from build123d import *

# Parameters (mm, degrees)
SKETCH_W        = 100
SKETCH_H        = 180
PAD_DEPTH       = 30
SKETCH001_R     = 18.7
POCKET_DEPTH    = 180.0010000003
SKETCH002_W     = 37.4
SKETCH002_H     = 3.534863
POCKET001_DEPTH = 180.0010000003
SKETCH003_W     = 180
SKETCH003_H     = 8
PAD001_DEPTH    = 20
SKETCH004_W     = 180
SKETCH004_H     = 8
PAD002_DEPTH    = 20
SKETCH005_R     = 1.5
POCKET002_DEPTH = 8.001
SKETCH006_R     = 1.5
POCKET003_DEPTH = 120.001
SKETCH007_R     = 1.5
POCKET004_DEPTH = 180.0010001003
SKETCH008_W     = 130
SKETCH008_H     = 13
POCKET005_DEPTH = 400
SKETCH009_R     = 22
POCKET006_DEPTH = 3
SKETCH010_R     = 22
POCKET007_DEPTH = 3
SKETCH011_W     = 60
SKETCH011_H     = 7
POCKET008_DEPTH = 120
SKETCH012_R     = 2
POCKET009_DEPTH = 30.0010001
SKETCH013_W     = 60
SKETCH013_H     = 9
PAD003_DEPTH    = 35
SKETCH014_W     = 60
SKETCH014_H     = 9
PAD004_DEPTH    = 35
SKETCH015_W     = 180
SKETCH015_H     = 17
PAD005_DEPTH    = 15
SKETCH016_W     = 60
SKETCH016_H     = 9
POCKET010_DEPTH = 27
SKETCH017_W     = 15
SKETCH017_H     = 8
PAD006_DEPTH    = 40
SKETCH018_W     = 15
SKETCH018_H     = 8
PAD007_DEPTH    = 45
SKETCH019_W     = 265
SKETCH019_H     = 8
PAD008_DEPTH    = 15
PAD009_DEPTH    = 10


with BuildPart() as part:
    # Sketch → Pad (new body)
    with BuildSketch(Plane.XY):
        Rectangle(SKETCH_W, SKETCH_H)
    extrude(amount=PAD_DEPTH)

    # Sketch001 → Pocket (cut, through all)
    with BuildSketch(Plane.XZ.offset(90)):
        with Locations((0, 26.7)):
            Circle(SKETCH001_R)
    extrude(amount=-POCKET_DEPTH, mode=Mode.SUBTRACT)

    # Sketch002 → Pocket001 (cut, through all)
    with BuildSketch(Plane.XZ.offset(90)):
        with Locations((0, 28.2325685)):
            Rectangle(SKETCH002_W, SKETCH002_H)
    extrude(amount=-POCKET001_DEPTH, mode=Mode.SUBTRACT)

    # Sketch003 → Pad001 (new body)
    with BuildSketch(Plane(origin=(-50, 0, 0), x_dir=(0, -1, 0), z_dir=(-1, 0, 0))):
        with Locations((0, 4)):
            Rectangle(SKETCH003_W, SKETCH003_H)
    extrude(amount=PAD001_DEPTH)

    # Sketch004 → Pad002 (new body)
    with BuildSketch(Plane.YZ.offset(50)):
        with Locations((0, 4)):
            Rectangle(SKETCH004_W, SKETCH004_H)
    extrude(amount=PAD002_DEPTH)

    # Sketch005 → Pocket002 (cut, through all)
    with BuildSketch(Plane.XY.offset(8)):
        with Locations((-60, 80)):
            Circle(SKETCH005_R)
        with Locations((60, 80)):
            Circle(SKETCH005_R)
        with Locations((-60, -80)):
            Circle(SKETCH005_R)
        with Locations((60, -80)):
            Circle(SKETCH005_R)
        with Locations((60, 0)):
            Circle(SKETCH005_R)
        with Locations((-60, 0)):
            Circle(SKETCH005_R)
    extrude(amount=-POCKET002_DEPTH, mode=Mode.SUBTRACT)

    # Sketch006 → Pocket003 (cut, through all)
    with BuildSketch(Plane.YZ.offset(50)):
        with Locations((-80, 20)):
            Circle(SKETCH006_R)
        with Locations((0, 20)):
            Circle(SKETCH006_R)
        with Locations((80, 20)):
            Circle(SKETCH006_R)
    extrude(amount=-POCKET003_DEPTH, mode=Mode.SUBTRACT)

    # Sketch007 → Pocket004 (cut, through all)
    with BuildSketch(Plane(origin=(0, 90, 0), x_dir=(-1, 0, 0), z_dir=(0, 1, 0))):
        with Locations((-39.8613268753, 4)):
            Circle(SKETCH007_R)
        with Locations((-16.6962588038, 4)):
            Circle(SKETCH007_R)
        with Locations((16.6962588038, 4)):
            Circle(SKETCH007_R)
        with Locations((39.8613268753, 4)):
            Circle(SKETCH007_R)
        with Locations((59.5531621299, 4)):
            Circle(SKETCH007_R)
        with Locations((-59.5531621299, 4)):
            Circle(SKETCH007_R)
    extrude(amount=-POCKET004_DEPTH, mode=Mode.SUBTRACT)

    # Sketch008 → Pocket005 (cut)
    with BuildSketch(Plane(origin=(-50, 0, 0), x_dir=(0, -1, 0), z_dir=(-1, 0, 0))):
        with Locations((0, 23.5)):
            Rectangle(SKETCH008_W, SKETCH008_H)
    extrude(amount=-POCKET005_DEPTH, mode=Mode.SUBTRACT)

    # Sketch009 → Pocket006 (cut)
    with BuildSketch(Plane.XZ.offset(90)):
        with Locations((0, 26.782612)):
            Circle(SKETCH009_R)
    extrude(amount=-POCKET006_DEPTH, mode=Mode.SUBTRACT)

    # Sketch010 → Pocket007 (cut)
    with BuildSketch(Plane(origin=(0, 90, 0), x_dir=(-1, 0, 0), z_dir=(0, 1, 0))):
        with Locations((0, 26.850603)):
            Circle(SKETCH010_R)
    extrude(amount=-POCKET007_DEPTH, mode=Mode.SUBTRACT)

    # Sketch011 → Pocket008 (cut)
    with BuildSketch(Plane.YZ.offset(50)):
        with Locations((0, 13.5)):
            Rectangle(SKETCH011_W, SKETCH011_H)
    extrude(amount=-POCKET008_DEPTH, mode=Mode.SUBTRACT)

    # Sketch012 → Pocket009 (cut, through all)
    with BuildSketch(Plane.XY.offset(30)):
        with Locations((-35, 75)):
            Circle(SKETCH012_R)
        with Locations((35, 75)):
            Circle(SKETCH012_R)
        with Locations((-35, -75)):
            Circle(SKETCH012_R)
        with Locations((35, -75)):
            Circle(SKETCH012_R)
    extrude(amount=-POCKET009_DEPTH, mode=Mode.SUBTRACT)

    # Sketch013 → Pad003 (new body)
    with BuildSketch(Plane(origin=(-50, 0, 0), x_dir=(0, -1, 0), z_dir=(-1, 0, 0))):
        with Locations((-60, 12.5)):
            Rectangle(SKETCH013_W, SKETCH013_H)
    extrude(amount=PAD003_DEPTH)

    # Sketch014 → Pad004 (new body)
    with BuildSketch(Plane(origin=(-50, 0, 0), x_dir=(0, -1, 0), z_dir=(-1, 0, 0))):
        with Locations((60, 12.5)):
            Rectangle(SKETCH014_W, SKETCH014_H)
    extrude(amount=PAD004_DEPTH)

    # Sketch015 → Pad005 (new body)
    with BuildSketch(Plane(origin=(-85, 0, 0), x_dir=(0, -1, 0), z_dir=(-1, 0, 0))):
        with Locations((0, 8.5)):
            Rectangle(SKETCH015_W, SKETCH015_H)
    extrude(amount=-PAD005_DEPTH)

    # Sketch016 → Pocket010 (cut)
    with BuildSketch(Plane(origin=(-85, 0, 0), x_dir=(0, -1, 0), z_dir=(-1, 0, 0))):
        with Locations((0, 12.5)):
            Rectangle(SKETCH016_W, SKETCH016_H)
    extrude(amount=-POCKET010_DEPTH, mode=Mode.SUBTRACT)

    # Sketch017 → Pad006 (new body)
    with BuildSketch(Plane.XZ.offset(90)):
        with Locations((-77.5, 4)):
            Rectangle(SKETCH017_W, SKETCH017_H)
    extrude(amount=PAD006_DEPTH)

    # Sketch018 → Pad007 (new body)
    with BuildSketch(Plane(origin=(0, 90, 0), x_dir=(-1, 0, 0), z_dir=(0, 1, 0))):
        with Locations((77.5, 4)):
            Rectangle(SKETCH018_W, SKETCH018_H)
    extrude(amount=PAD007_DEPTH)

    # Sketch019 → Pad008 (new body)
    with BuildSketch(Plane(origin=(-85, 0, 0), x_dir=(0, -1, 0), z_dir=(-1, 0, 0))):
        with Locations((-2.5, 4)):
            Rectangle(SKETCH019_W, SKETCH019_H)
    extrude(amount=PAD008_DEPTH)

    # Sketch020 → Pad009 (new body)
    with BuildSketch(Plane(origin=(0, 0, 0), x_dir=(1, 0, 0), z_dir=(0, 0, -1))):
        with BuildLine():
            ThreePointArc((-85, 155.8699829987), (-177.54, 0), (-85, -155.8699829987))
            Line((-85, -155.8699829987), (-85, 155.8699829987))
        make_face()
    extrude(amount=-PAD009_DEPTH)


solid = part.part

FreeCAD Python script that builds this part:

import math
import FreeCAD as App
import Part
import Sketcher
Q = App.Units.Quantity

doc = App.newDocument("Part")
body = doc.addObject("PartDesign::Body", "Body")

# Sketch on XY plane
sketch1 = body.newObject("Sketcher::SketchObject", "Sketch")
sketch1.AttachmentSupport = (doc.getObject("XY_Plane"), [""])
sketch1.MapMode = "FlatFace"
sketch1.addGeometry([
    Part.LineSegment(App.Vector(-50, 90, 0), App.Vector(-50, -90, 0)),
    Part.LineSegment(App.Vector(-50, -90, 0), App.Vector(50, -90, 0)),
    Part.LineSegment(App.Vector(50, -90, 0), App.Vector(50, 90, 0)),
    Part.LineSegment(App.Vector(50, 90, 0), App.Vector(-50, 90, 0)),
], False)
sketch1.addConstraint([
    Sketcher.Constraint("Coincident", 0, 2, 1, 1),
    Sketcher.Constraint("Coincident", 1, 2, 2, 1),
    Sketcher.Constraint("Coincident", 2, 2, 3, 1),
    Sketcher.Constraint("Coincident", 3, 2, 0, 1),
    Sketcher.Constraint("Vertical", 0),
    Sketcher.Constraint("Horizontal", 1),
    Sketcher.Constraint("Vertical", 2),
    Sketcher.Constraint("Horizontal", 3),
    Sketcher.Constraint("Symmetric", 0, 2, 2, 2, -1, 1),
    Sketcher.Constraint("DistanceX", 1, 1, 1, 2, Q("100 mm")),
    Sketcher.Constraint("DistanceY", 0, 2, 0, 1, Q("180 mm")),
])
pad1 = body.newObject("PartDesign::Pad", "Pad")
pad1.Profile = sketch1
pad1.Length = 30

# Sketch on XZ plane
sketch2 = body.newObject("Sketcher::SketchObject", "Sketch001")
sketch2.AttachmentSupport = (doc.getObject("XZ_Plane"), [""])
sketch2.MapMode = "FlatFace"
sketch2.AttachmentOffset = App.Placement(App.Vector(0, 0, 90), App.Rotation())
sketch2.addGeometry(Part.Circle(App.Vector(0, 26.7, 0), App.Vector(0, 0, 1), 18.7), False)
sketch2.addConstraint([
    Sketcher.Constraint("PointOnObject", 0, 3, -2),
    Sketcher.Constraint("Diameter", 0, Q("37.4 mm")),
    Sketcher.Constraint("DistanceY", -1, 1, 0, 3, Q("26.7 mm")),
])
pocket1 = body.newObject("PartDesign::Pocket", "Pocket")
pocket1.Profile = sketch2
pocket1.Type = "ThroughAll"

# Sketch on XZ plane
sketch3 = body.newObject("Sketcher::SketchObject", "Sketch002")
sketch3.AttachmentSupport = (doc.getObject("XZ_Plane"), [""])
sketch3.MapMode = "FlatFace"
sketch3.AttachmentOffset = App.Placement(App.Vector(0, 0, 90), App.Rotation())
sketch3.addGeometry([
    Part.LineSegment(App.Vector(-18.7, 30, 0), App.Vector(-18.7, 26.465137, 0)),
    Part.LineSegment(App.Vector(-18.7, 26.465137, 0), App.Vector(18.7, 26.465137, 0)),
    Part.LineSegment(App.Vector(18.7, 26.465137, 0), App.Vector(18.7, 30, 0)),
    Part.LineSegment(App.Vector(18.7, 30, 0), App.Vector(-18.7, 30, 0)),
], False)
sketch3.addConstraint([
    Sketcher.Constraint("Coincident", 0, 2, 1, 1),
    Sketcher.Constraint("Coincident", 1, 2, 2, 1),
    Sketcher.Constraint("Coincident", 2, 2, 3, 1),
    Sketcher.Constraint("Coincident", 3, 2, 0, 1),
    Sketcher.Constraint("Vertical", 0),
    Sketcher.Constraint("Horizontal", 1),
    Sketcher.Constraint("Vertical", 2),
    Sketcher.Constraint("Horizontal", 3),
    Sketcher.Constraint("DistanceX", 1, 1, 1, 2, Q("37.4 mm")),
    Sketcher.Constraint("DistanceY", -1, 1, 2, 2, Q("30 mm")),
    Sketcher.Constraint("DistanceX", 0, 2, -1, 1, Q("18.7 mm")),
    Sketcher.Constraint("DistanceY", 0, 2, 0, 1, Q("3.534863 mm")),
])
pocket2 = body.newObject("PartDesign::Pocket", "Pocket001")
pocket2.Profile = sketch3
pocket2.Type = "ThroughAll"

# Sketch on YZ plane
sketch4 = body.newObject("Sketcher::SketchObject", "Sketch003")
sketch4.AttachmentSupport = (doc.getObject("YZ_Plane"), [""])
sketch4.MapMode = "FlatFace"
sketch4.AttachmentOffset = App.Placement(App.Vector(0, 0, -50), App.Rotation())
sketch4.addGeometry([
    Part.LineSegment(App.Vector(90, 8, 0), App.Vector(90, 0, 0)),
    Part.LineSegment(App.Vector(90, 0, 0), App.Vector(-90, 0, 0)),
    Part.LineSegment(App.Vector(-90, 0, 0), App.Vector(-90, 8, 0)),
    Part.LineSegment(App.Vector(-90, 8, 0), App.Vector(90, 8, 0)),
], False)
sketch4.addConstraint([
    Sketcher.Constraint("Coincident", 0, 2, 1, 1),
    Sketcher.Constraint("Coincident", 1, 2, 2, 1),
    Sketcher.Constraint("Coincident", 2, 2, 3, 1),
    Sketcher.Constraint("Coincident", 3, 2, 0, 1),
    Sketcher.Constraint("Vertical", 0),
    Sketcher.Constraint("Horizontal", 1),
    Sketcher.Constraint("Vertical", 2),
    Sketcher.Constraint("Horizontal", 3),
    Sketcher.Constraint("Symmetric", 0, 2, 1, 2, -1, 1),
    Sketcher.Constraint("DistanceX", 1, 2, 1, 1, Q("180 mm")),
    Sketcher.Constraint("DistanceY", 0, 2, 0, 1, Q("8 mm")),
])
pad2 = body.newObject("PartDesign::Pad", "Pad001")
pad2.Profile = sketch4
pad2.Length = 20
pad2.Reversed = True

# Sketch on YZ plane
sketch5 = body.newObject("Sketcher::SketchObject", "Sketch004")
sketch5.AttachmentSupport = (doc.getObject("YZ_Plane"), [""])
sketch5.MapMode = "FlatFace"
sketch5.AttachmentOffset = App.Placement(App.Vector(0, 0, 50), App.Rotation())
sketch5.addGeometry([
    Part.LineSegment(App.Vector(-90, 8, 0), App.Vector(-90, 0, 0)),
    Part.LineSegment(App.Vector(-90, 0, 0), App.Vector(90, 0, 0)),
    Part.LineSegment(App.Vector(90, 0, 0), App.Vector(90, 8, 0)),
    Part.LineSegment(App.Vector(90, 8, 0), App.Vector(-90, 8, 0)),
], False)
sketch5.addConstraint([
    Sketcher.Constraint("Coincident", 0, 2, 1, 1),
    Sketcher.Constraint("Coincident", 1, 2, 2, 1),
    Sketcher.Constraint("Coincident", 2, 2, 3, 1),
    Sketcher.Constraint("Coincident", 3, 2, 0, 1),
    Sketcher.Constraint("Vertical", 0),
    Sketcher.Constraint("Horizontal", 1),
    Sketcher.Constraint("Vertical", 2),
    Sketcher.Constraint("Horizontal", 3),
    Sketcher.Constraint("Symmetric", 0, 2, 1, 2, -1, 1),
    Sketcher.Constraint("DistanceX", 1, 1, 1, 2, Q("180 mm")),
    Sketcher.Constraint("DistanceY", 0, 2, 0, 1, Q("8 mm")),
])
pad3 = body.newObject("PartDesign::Pad", "Pad002")
pad3.Profile = sketch5
pad3.Length = 20

# Sketch on XY plane
sketch6 = body.newObject("Sketcher::SketchObject", "Sketch005")
sketch6.AttachmentSupport = (doc.getObject("XY_Plane"), [""])
sketch6.MapMode = "FlatFace"
sketch6.AttachmentOffset = App.Placement(App.Vector(0, 0, 8), App.Rotation())
sketch6.addGeometry([
    Part.Circle(App.Vector(-60, 80, 0), App.Vector(0, 0, 1), 1.5),  # 0
    Part.Circle(App.Vector(60, 80, 0), App.Vector(0, 0, 1), 1.5),  # 1
    Part.Circle(App.Vector(-60, -80, 0), App.Vector(0, 0, 1), 1.5),  # 2
    Part.Circle(App.Vector(60, -80, 0), App.Vector(0, 0, 1), 1.5),  # 3
    Part.Circle(App.Vector(60, 0, 0), App.Vector(0, 0, 1), 1.5),  # 4
    Part.Circle(App.Vector(-60, 0, 0), App.Vector(0, 0, 1), 1.5),  # 5
], False)
sketch6.addConstraint([
    Sketcher.Constraint("Equal", 0, 1),
    Sketcher.Constraint("Equal", 1, 2),
    Sketcher.Constraint("Equal", 2, 3),
    Sketcher.Constraint("Equal", 3, 4),
    Sketcher.Constraint("Equal", 4, 5),
    Sketcher.Constraint("Symmetric", 1, 3, 2, 3, -1, 1),
    Sketcher.Constraint("Symmetric", 0, 3, 3, 3, -1, 1),
    Sketcher.Constraint("Symmetric", 4, 3, 5, 3, -1, 1),
    Sketcher.Constraint("Symmetric", 0, 3, 1, 3, -2),
    Sketcher.Constraint("PointOnObject", 4, 3, -1),
    Sketcher.Constraint("Vertical", 3, 3, 4, 3),
    Sketcher.Constraint("Diameter", 0, Q("3 mm")),
    Sketcher.Constraint("DistanceX", 0, 3, -1, 1, Q("60 mm")),
    Sketcher.Constraint("DistanceY", -1, 1, 0, 3, Q("80 mm")),
])
pocket3 = body.newObject("PartDesign::Pocket", "Pocket002")
pocket3.Profile = sketch6
pocket3.Type = "ThroughAll"

# Sketch on YZ plane
sketch7 = body.newObject("Sketcher::SketchObject", "Sketch006")
sketch7.AttachmentSupport = (doc.getObject("YZ_Plane"), [""])
sketch7.MapMode = "FlatFace"
sketch7.AttachmentOffset = App.Placement(App.Vector(0, 0, 50), App.Rotation())
sketch7.addGeometry([
    Part.Circle(App.Vector(-80, 20, 0), App.Vector(0, 0, 1), 1.5),
    Part.Circle(App.Vector(0, 20, 0), App.Vector(0, 0, 1), 1.5),
    Part.Circle(App.Vector(80, 20, 0), App.Vector(0, 0, 1), 1.5),
], False)
sketch7.addConstraint([
    Sketcher.Constraint("Equal", 0, 1),
    Sketcher.Constraint("Equal", 1, 2),
    Sketcher.Constraint("Symmetric", 0, 3, 2, 3, -2),
    Sketcher.Constraint("PointOnObject", 1, 3, -2),
    Sketcher.Constraint("Horizontal", 0, 3, 1, 3),
    Sketcher.Constraint("Diameter", 0, Q("3 mm")),
    Sketcher.Constraint("DistanceX", 0, 3, -1, 1, Q("80 mm")),
    Sketcher.Constraint("DistanceY", -1, 1, 0, 3, Q("20 mm")),
])
pocket4 = body.newObject("PartDesign::Pocket", "Pocket003")
pocket4.Profile = sketch7
pocket4.Type = "ThroughAll"

# Sketch on XZ plane
sketch8 = body.newObject("Sketcher::SketchObject", "Sketch007")
sketch8.AttachmentSupport = (doc.getObject("XZ_Plane"), [""])
sketch8.MapMode = "FlatFace"
sketch8.AttachmentOffset = App.Placement(App.Vector(0, 0, -90), App.Rotation())
sketch8.addGeometry([
    Part.Circle(App.Vector(39.861327, 4, 0), App.Vector(0, 0, 1), 1.5),  # 0
    Part.Circle(App.Vector(16.696259, 4, 0), App.Vector(0, 0, 1), 1.5),  # 1
    Part.Circle(App.Vector(-16.696259, 4, 0), App.Vector(0, 0, 1), 1.5),  # 2
    Part.Circle(App.Vector(-39.861327, 4, 0), App.Vector(0, 0, 1), 1.5),  # 3
    Part.Circle(App.Vector(-59.553162, 4, 0), App.Vector(0, 0, 1), 1.5),  # 4
    Part.Circle(App.Vector(59.553162, 4, 0), App.Vector(0, 0, 1), 1.5),  # 5
], False)
sketch8.addConstraint([
    Sketcher.Constraint("Equal", 0, 1),
    Sketcher.Constraint("Equal", 1, 2),
    Sketcher.Constraint("Equal", 2, 3),
    Sketcher.Constraint("Equal", 3, 4),
    Sketcher.Constraint("Equal", 4, 5),
    Sketcher.Constraint("Symmetric", 1, 3, 2, 3, -2),
    Sketcher.Constraint("Symmetric", 0, 3, 3, 3, -2),
    Sketcher.Constraint("Symmetric", 4, 3, 5, 3, -2),
    Sketcher.Constraint("Horizontal", 0, 3, 1, 3),
    Sketcher.Constraint("Horizontal", 3, 3, 4, 3),
    Sketcher.Constraint("Diameter", 0, Q("3 mm")),
    Sketcher.Constraint("DistanceY", -1, 1, 0, 3, Q("4 mm")),
    Sketcher.Constraint("DistanceX", -1, 1, 1, 3, Q("16.696259 mm")),
    Sketcher.Constraint("DistanceX", 1, 3, 0, 3, Q("23.165068 mm")),
    Sketcher.Constraint("DistanceX", 4, 3, 1, 3, Q("76.249421 mm")),
])
pocket5 = body.newObject("PartDesign::Pocket", "Pocket004")
pocket5.Profile = sketch8
pocket5.Type = "ThroughAll"
pocket5.Reversed = True

# Sketch on YZ plane
sketch9 = body.newObject("Sketcher::SketchObject", "Sketch008")
sketch9.AttachmentSupport = (doc.getObject("YZ_Plane"), [""])
sketch9.MapMode = "FlatFace"
sketch9.AttachmentOffset = App.Placement(App.Vector(0, 0, -50), App.Rotation())
sketch9.addGeometry([
    Part.LineSegment(App.Vector(65, 30, 0), App.Vector(65, 17, 0)),
    Part.LineSegment(App.Vector(65, 17, 0), App.Vector(-65, 17, 0)),
    Part.LineSegment(App.Vector(-65, 17, 0), App.Vector(-65, 30, 0)),
    Part.LineSegment(App.Vector(-65, 30, 0), App.Vector(65, 30, 0)),
], False)
sketch9.addConstraint([
    Sketcher.Constraint("Coincident", 0, 2, 1, 1),
    Sketcher.Constraint("Coincident", 1, 2, 2, 1),
    Sketcher.Constraint("Coincident", 2, 2, 3, 1),
    Sketcher.Constraint("Coincident", 3, 2, 0, 1),
    Sketcher.Constraint("Vertical", 0),
    Sketcher.Constraint("Horizontal", 1),
    Sketcher.Constraint("Vertical", 2),
    Sketcher.Constraint("Horizontal", 3),
    Sketcher.Constraint("DistanceX", 1, 2, 1, 1, Q("130 mm")),
    Sketcher.Constraint("DistanceY", 0, 2, 0, 1, Q("13 mm")),
    Sketcher.Constraint("DistanceX", -1, 1, 0, 2, Q("65 mm")),
    Sketcher.Constraint("DistanceY", -1, 1, 0, 2, Q("17 mm")),
])
pocket6 = body.newObject("PartDesign::Pocket", "Pocket005")
pocket6.Profile = sketch9
pocket6.Length = 400
pocket6.Reversed = True

# Sketch on XZ plane
sketch10 = body.newObject("Sketcher::SketchObject", "Sketch009")
sketch10.AttachmentSupport = (doc.getObject("XZ_Plane"), [""])
sketch10.MapMode = "FlatFace"
sketch10.AttachmentOffset = App.Placement(App.Vector(0, 0, 90), App.Rotation())
sketch10.addGeometry(Part.Circle(App.Vector(0, 26.782612, 0), App.Vector(0, 0, 1), 22), False)
sketch10.addConstraint([
    Sketcher.Constraint("PointOnObject", 0, 3, -2),
    Sketcher.Constraint("Diameter", 0, Q("44 mm")),
    Sketcher.Constraint("DistanceY", -1, 1, 0, 3, Q("26.782612 mm")),
])
pocket7 = body.newObject("PartDesign::Pocket", "Pocket006")
pocket7.Profile = sketch10
pocket7.Length = 3

# Sketch on XZ plane
sketch11 = body.newObject("Sketcher::SketchObject", "Sketch010")
sketch11.AttachmentSupport = (doc.getObject("XZ_Plane"), [""])
sketch11.MapMode = "FlatFace"
sketch11.AttachmentOffset = App.Placement(App.Vector(0, 0, -90), App.Rotation())
sketch11.addGeometry(Part.Circle(App.Vector(0, 26.850603, 0), App.Vector(0, 0, 1), 22), False)
sketch11.addConstraint([
    Sketcher.Constraint("PointOnObject", 0, 3, -2),
    Sketcher.Constraint("Diameter", 0, Q("44 mm")),
    Sketcher.Constraint("DistanceY", -1, 1, 0, 3, Q("26.850603 mm")),
])
pocket8 = body.newObject("PartDesign::Pocket", "Pocket007")
pocket8.Profile = sketch11
pocket8.Length = 3
pocket8.Reversed = True

# Sketch on YZ plane
sketch12 = body.newObject("Sketcher::SketchObject", "Sketch011")
sketch12.AttachmentSupport = (doc.getObject("YZ_Plane"), [""])
sketch12.MapMode = "FlatFace"
sketch12.AttachmentOffset = App.Placement(App.Vector(0, 0, 50), App.Rotation())
sketch12.addGeometry([
    Part.LineSegment(App.Vector(-30, 17, 0), App.Vector(-30, 10, 0)),
    Part.LineSegment(App.Vector(-30, 10, 0), App.Vector(30, 10, 0)),
    Part.LineSegment(App.Vector(30, 10, 0), App.Vector(30, 17, 0)),
    Part.LineSegment(App.Vector(30, 17, 0), App.Vector(-30, 17, 0)),
], False)
sketch12.addConstraint([
    Sketcher.Constraint("Coincident", 0, 2, 1, 1),
    Sketcher.Constraint("Coincident", 1, 2, 2, 1),
    Sketcher.Constraint("Coincident", 2, 2, 3, 1),
    Sketcher.Constraint("Coincident", 3, 2, 0, 1),
    Sketcher.Constraint("Vertical", 0),
    Sketcher.Constraint("Horizontal", 1),
    Sketcher.Constraint("Vertical", 2),
    Sketcher.Constraint("Horizontal", 3),
    Sketcher.Constraint("DistanceX", 1, 1, 1, 2, Q("60 mm")),
    Sketcher.Constraint("DistanceY", 0, 2, 0, 1, Q("7 mm")),
    Sketcher.Constraint("DistanceX", 0, 2, -1, 1, Q("30 mm")),
    Sketcher.Constraint("DistanceY", -1, 1, 0, 2, Q("10 mm")),
])
pocket9 = body.newObject("PartDesign::Pocket", "Pocket008")
pocket9.Profile = sketch12
pocket9.Length = 120

# Sketch on XY plane
sketch13 = body.newObject("Sketcher::SketchObject", "Sketch012")
sketch13.AttachmentSupport = (doc.getObject("XY_Plane"), [""])
sketch13.MapMode = "FlatFace"
sketch13.AttachmentOffset = App.Placement(App.Vector(0, 0, 30), App.Rotation())
sketch13.addGeometry([
    Part.Circle(App.Vector(-35, 75, 0), App.Vector(0, 0, 1), 2),
    Part.Circle(App.Vector(35, 75, 0), App.Vector(0, 0, 1), 2),
    Part.Circle(App.Vector(-35, -75, 0), App.Vector(0, 0, 1), 2),
    Part.Circle(App.Vector(35, -75, 0), App.Vector(0, 0, 1), 2),
], False)
sketch13.addConstraint([
    Sketcher.Constraint("Equal", 0, 1),
    Sketcher.Constraint("Equal", 1, 2),
    Sketcher.Constraint("Equal", 2, 3),
    Sketcher.Constraint("Symmetric", 1, 3, 2, 3, -1, 1),
    Sketcher.Constraint("Symmetric", 0, 3, 3, 3, -1, 1),
    Sketcher.Constraint("Symmetric", 0, 3, 1, 3, -2),
    Sketcher.Constraint("Diameter", 0, Q("4 mm")),
    Sketcher.Constraint("DistanceX", 0, 3, -1, 1, Q("35 mm")),
    Sketcher.Constraint("DistanceY", -1, 1, 0, 3, Q("75 mm")),
])
pocket10 = body.newObject("PartDesign::Pocket", "Pocket009")
pocket10.Profile = sketch13
pocket10.Type = "ThroughAll"

# Sketch on YZ plane
sketch14 = body.newObject("Sketcher::SketchObject", "Sketch013")
sketch14.AttachmentSupport = (doc.getObject("YZ_Plane"), [""])
sketch14.MapMode = "FlatFace"
sketch14.AttachmentOffset = App.Placement(App.Vector(0, 0, -50), App.Rotation())
sketch14.addGeometry([
    Part.LineSegment(App.Vector(90, 17, 0), App.Vector(90, 8, 0)),
    Part.LineSegment(App.Vector(90, 8, 0), App.Vector(30, 8, 0)),
    Part.LineSegment(App.Vector(30, 8, 0), App.Vector(30, 17, 0)),
    Part.LineSegment(App.Vector(30, 17, 0), App.Vector(90, 17, 0)),
], False)
sketch14.addConstraint([
    Sketcher.Constraint("Coincident", 0, 2, 1, 1),
    Sketcher.Constraint("Coincident", 1, 2, 2, 1),
    Sketcher.Constraint("Coincident", 2, 2, 3, 1),
    Sketcher.Constraint("Coincident", 3, 2, 0, 1),
    Sketcher.Constraint("Vertical", 0),
    Sketcher.Constraint("Horizontal", 1),
    Sketcher.Constraint("Vertical", 2),
    Sketcher.Constraint("Horizontal", 3),
    Sketcher.Constraint("DistanceX", 1, 2, 1, 1, Q("60 mm")),
    Sketcher.Constraint("DistanceY", 0, 2, 0, 1, Q("9 mm")),
    Sketcher.Constraint("DistanceX", -1, 1, 0, 2, Q("90 mm")),
    Sketcher.Constraint("DistanceY", -1, 1, 0, 2, Q("8 mm")),
])
pad4 = body.newObject("PartDesign::Pad", "Pad003")
pad4.Profile = sketch14
pad4.Length = 35
pad4.Reversed = True

# Sketch on YZ plane
sketch15 = body.newObject("Sketcher::SketchObject", "Sketch014")
sketch15.AttachmentSupport = (doc.getObject("YZ_Plane"), [""])
sketch15.MapMode = "FlatFace"
sketch15.AttachmentOffset = App.Placement(App.Vector(0, 0, -50), App.Rotation())
sketch15.addGeometry([
    Part.LineSegment(App.Vector(-30, 17, 0), App.Vector(-30, 8, 0)),
    Part.LineSegment(App.Vector(-30, 8, 0), App.Vector(-90, 8, 0)),
    Part.LineSegment(App.Vector(-90, 8, 0), App.Vector(-90, 17, 0)),
    Part.LineSegment(App.Vector(-90, 17, 0), App.Vector(-30, 17, 0)),
], False)
sketch15.addConstraint([
    Sketcher.Constraint("Coincident", 0, 2, 1, 1),
    Sketcher.Constraint("Coincident", 1, 2, 2, 1),
    Sketcher.Constraint("Coincident", 2, 2, 3, 1),
    Sketcher.Constraint("Coincident", 3, 2, 0, 1),
    Sketcher.Constraint("Vertical", 0),
    Sketcher.Constraint("Horizontal", 1),
    Sketcher.Constraint("Vertical", 2),
    Sketcher.Constraint("Horizontal", 3),
    Sketcher.Constraint("DistanceX", 1, 2, 1, 1, Q("60 mm")),
    Sketcher.Constraint("DistanceY", 0, 2, 0, 1, Q("9 mm")),
    Sketcher.Constraint("DistanceX", 0, 2, -1, 1, Q("30 mm")),
    Sketcher.Constraint("DistanceY", -1, 1, 0, 2, Q("8 mm")),
])
pad5 = body.newObject("PartDesign::Pad", "Pad004")
pad5.Profile = sketch15
pad5.Length = 35
pad5.Reversed = True

# Sketch on YZ plane
sketch16 = body.newObject("Sketcher::SketchObject", "Sketch015")
sketch16.AttachmentSupport = (doc.getObject("YZ_Plane"), [""])
sketch16.MapMode = "FlatFace"
sketch16.AttachmentOffset = App.Placement(App.Vector(0, 0, -85), App.Rotation())
sketch16.addGeometry([
    Part.LineSegment(App.Vector(90, 17, 0), App.Vector(90, 0, 0)),
    Part.LineSegment(App.Vector(90, 0, 0), App.Vector(-90, 0, 0)),
    Part.LineSegment(App.Vector(-90, 0, 0), App.Vector(-90, 17, 0)),
    Part.LineSegment(App.Vector(-90, 17, 0), App.Vector(90, 17, 0)),
], False)
sketch16.addConstraint([
    Sketcher.Constraint("Coincident", 0, 2, 1, 1),
    Sketcher.Constraint("Coincident", 1, 2, 2, 1),
    Sketcher.Constraint("Coincident", 2, 2, 3, 1),
    Sketcher.Constraint("Coincident", 3, 2, 0, 1),
    Sketcher.Constraint("Vertical", 0),
    Sketcher.Constraint("Horizontal", 1),
    Sketcher.Constraint("Vertical", 2),
    Sketcher.Constraint("Horizontal", 3),
    Sketcher.Constraint("Symmetric", 0, 2, 1, 2, -1, 1),
    Sketcher.Constraint("DistanceX", 1, 2, 1, 1, Q("180 mm")),
    Sketcher.Constraint("DistanceY", 0, 2, 0, 1, Q("17 mm")),
])
pad6 = body.newObject("PartDesign::Pad", "Pad005")
pad6.Profile = sketch16
pad6.Length = 15

# Sketch on YZ plane
sketch17 = body.newObject("Sketcher::SketchObject", "Sketch016")
sketch17.AttachmentSupport = (doc.getObject("YZ_Plane"), [""])
sketch17.MapMode = "FlatFace"
sketch17.AttachmentOffset = App.Placement(App.Vector(0, 0, -85), App.Rotation())
sketch17.addGeometry([
    Part.LineSegment(App.Vector(30, 17, 0), App.Vector(30, 8, 0)),
    Part.LineSegment(App.Vector(30, 8, 0), App.Vector(-30, 8, 0)),
    Part.LineSegment(App.Vector(-30, 8, 0), App.Vector(-30, 17, 0)),
    Part.LineSegment(App.Vector(-30, 17, 0), App.Vector(30, 17, 0)),
], False)
sketch17.addConstraint([
    Sketcher.Constraint("Coincident", 0, 2, 1, 1),
    Sketcher.Constraint("Coincident", 1, 2, 2, 1),
    Sketcher.Constraint("Coincident", 2, 2, 3, 1),
    Sketcher.Constraint("Coincident", 3, 2, 0, 1),
    Sketcher.Constraint("Vertical", 0),
    Sketcher.Constraint("Horizontal", 1),
    Sketcher.Constraint("Vertical", 2),
    Sketcher.Constraint("Horizontal", 3),
    Sketcher.Constraint("DistanceX", 1, 2, 1, 1, Q("60 mm")),
    Sketcher.Constraint("DistanceY", 0, 2, 0, 1, Q("9 mm")),
    Sketcher.Constraint("DistanceX", -1, 1, 0, 2, Q("30 mm")),
    Sketcher.Constraint("DistanceY", -1, 1, 0, 2, Q("8 mm")),
])
pocket11 = body.newObject("PartDesign::Pocket", "Pocket010")
pocket11.Profile = sketch17
pocket11.Length = 27
pocket11.Reversed = True

# Sketch on XZ plane
sketch18 = body.newObject("Sketcher::SketchObject", "Sketch017")
sketch18.AttachmentSupport = (doc.getObject("XZ_Plane"), [""])
sketch18.MapMode = "FlatFace"
sketch18.AttachmentOffset = App.Placement(App.Vector(0, 0, 90), App.Rotation())
sketch18.addGeometry([
    Part.LineSegment(App.Vector(-85, 8, 0), App.Vector(-85, 0, 0)),
    Part.LineSegment(App.Vector(-85, 0, 0), App.Vector(-70, 0, 0)),
    Part.LineSegment(App.Vector(-70, 0, 0), App.Vector(-70, 8, 0)),
    Part.LineSegment(App.Vector(-70, 8, 0), App.Vector(-85, 8, 0)),
], False)
sketch18.addConstraint([
    Sketcher.Constraint("Coincident", 0, 2, 1, 1),
    Sketcher.Constraint("Coincident", 1, 2, 2, 1),
    Sketcher.Constraint("Coincident", 2, 2, 3, 1),
    Sketcher.Constraint("Coincident", 3, 2, 0, 1),
    Sketcher.Constraint("Vertical", 0),
    Sketcher.Constraint("Horizontal", 1),
    Sketcher.Constraint("Vertical", 2),
    Sketcher.Constraint("Horizontal", 3),
    Sketcher.Constraint("PointOnObject", 0, 2, -1),
    Sketcher.Constraint("DistanceX", 1, 1, 1, 2, Q("15 mm")),
    Sketcher.Constraint("DistanceY", 0, 2, 0, 1, Q("8 mm")),
    Sketcher.Constraint("DistanceX", 0, 2, -1, 1, Q("85 mm")),
])
pad7 = body.newObject("PartDesign::Pad", "Pad006")
pad7.Profile = sketch18
pad7.Length = 40

# Sketch on XZ plane
sketch19 = body.newObject("Sketcher::SketchObject", "Sketch018")
sketch19.AttachmentSupport = (doc.getObject("XZ_Plane"), [""])
sketch19.MapMode = "FlatFace"
sketch19.AttachmentOffset = App.Placement(App.Vector(0, 0, -90), App.Rotation())
sketch19.addGeometry([
    Part.LineSegment(App.Vector(-70, 8, 0), App.Vector(-70, 0, 0)),
    Part.LineSegment(App.Vector(-70, 0, 0), App.Vector(-85, 0, 0)),
    Part.LineSegment(App.Vector(-85, 0, 0), App.Vector(-85, 8, 0)),
    Part.LineSegment(App.Vector(-85, 8, 0), App.Vector(-70, 8, 0)),
], False)
sketch19.addConstraint([
    Sketcher.Constraint("Coincident", 0, 2, 1, 1),
    Sketcher.Constraint("Coincident", 1, 2, 2, 1),
    Sketcher.Constraint("Coincident", 2, 2, 3, 1),
    Sketcher.Constraint("Coincident", 3, 2, 0, 1),
    Sketcher.Constraint("Vertical", 0),
    Sketcher.Constraint("Horizontal", 1),
    Sketcher.Constraint("Vertical", 2),
    Sketcher.Constraint("Horizontal", 3),
    Sketcher.Constraint("PointOnObject", 0, 2, -1),
    Sketcher.Constraint("DistanceX", 1, 2, 1, 1, Q("15 mm")),
    Sketcher.Constraint("DistanceY", 0, 2, 0, 1, Q("8 mm")),
    Sketcher.Constraint("DistanceX", 0, 2, -1, 1, Q("70 mm")),
])
pad8 = body.newObject("PartDesign::Pad", "Pad007")
pad8.Profile = sketch19
pad8.Length = 45
pad8.Reversed = True

# Sketch on YZ plane
sketch20 = body.newObject("Sketcher::SketchObject", "Sketch019")
sketch20.AttachmentSupport = (doc.getObject("YZ_Plane"), [""])
sketch20.MapMode = "FlatFace"
sketch20.AttachmentOffset = App.Placement(App.Vector(0, 0, -85), App.Rotation())
sketch20.addGeometry([
    Part.LineSegment(App.Vector(135, 8, 0), App.Vector(135, 0, 0)),
    Part.LineSegment(App.Vector(135, 0, 0), App.Vector(-130, 0, 0)),
    Part.LineSegment(App.Vector(-130, 0, 0), App.Vector(-130, 8, 0)),
    Part.LineSegment(App.Vector(-130, 8, 0), App.Vector(135, 8, 0)),
], False)
sketch20.addConstraint([
    Sketcher.Constraint("Coincident", 0, 2, 1, 1),
    Sketcher.Constraint("Coincident", 1, 2, 2, 1),
    Sketcher.Constraint("Coincident", 2, 2, 3, 1),
    Sketcher.Constraint("Coincident", 3, 2, 0, 1),
    Sketcher.Constraint("Vertical", 0),
    Sketcher.Constraint("Horizontal", 1),
    Sketcher.Constraint("Vertical", 2),
    Sketcher.Constraint("Horizontal", 3),
    Sketcher.Constraint("PointOnObject", 0, 2, -1),
    Sketcher.Constraint("DistanceX", 1, 2, 1, 1, Q("265 mm")),
    Sketcher.Constraint("DistanceY", 0, 2, 0, 1, Q("8 mm")),
    Sketcher.Constraint("DistanceX", -1, 1, 0, 2, Q("135 mm")),
])
pad9 = body.newObject("PartDesign::Pad", "Pad008")
pad9.Profile = sketch20
pad9.Length = 15
pad9.Reversed = True

# Sketch on XY plane
sketch21 = body.newObject("Sketcher::SketchObject", "Sketch020")
sketch21.AttachmentSupport = (doc.getObject("XY_Plane"), [""])
sketch21.MapMode = "FlatFace"
sketch21.addGeometry([
    Part.ArcOfCircle(Part.Circle(App.Vector(0, 0, 0), App.Vector(0, 0, 1), 177.54), math.radians(118.604796), math.radians(241.395204)),
    Part.LineSegment(App.Vector(-85, 155.869983, 0), App.Vector(-85, -155.869983, 0)),
], False)
sketch21.addConstraint([
    Sketcher.Constraint("Coincident", 0, 1, 1, 1),
    Sketcher.Constraint("Coincident", 1, 2, 0, 2),
    Sketcher.Constraint("Vertical", 1),
    Sketcher.Constraint("Coincident", 0, 3, -1, 1),
    Sketcher.Constraint("Radius", 0, Q("177.54 mm")),
    Sketcher.Constraint("DistanceX", 0, 1, -1, 1, Q("85 mm")),
])
pad10 = body.newObject("PartDesign::Pad", "Pad009")
pad10.Profile = sketch21
pad10.Length = 10

doc.recompute()
